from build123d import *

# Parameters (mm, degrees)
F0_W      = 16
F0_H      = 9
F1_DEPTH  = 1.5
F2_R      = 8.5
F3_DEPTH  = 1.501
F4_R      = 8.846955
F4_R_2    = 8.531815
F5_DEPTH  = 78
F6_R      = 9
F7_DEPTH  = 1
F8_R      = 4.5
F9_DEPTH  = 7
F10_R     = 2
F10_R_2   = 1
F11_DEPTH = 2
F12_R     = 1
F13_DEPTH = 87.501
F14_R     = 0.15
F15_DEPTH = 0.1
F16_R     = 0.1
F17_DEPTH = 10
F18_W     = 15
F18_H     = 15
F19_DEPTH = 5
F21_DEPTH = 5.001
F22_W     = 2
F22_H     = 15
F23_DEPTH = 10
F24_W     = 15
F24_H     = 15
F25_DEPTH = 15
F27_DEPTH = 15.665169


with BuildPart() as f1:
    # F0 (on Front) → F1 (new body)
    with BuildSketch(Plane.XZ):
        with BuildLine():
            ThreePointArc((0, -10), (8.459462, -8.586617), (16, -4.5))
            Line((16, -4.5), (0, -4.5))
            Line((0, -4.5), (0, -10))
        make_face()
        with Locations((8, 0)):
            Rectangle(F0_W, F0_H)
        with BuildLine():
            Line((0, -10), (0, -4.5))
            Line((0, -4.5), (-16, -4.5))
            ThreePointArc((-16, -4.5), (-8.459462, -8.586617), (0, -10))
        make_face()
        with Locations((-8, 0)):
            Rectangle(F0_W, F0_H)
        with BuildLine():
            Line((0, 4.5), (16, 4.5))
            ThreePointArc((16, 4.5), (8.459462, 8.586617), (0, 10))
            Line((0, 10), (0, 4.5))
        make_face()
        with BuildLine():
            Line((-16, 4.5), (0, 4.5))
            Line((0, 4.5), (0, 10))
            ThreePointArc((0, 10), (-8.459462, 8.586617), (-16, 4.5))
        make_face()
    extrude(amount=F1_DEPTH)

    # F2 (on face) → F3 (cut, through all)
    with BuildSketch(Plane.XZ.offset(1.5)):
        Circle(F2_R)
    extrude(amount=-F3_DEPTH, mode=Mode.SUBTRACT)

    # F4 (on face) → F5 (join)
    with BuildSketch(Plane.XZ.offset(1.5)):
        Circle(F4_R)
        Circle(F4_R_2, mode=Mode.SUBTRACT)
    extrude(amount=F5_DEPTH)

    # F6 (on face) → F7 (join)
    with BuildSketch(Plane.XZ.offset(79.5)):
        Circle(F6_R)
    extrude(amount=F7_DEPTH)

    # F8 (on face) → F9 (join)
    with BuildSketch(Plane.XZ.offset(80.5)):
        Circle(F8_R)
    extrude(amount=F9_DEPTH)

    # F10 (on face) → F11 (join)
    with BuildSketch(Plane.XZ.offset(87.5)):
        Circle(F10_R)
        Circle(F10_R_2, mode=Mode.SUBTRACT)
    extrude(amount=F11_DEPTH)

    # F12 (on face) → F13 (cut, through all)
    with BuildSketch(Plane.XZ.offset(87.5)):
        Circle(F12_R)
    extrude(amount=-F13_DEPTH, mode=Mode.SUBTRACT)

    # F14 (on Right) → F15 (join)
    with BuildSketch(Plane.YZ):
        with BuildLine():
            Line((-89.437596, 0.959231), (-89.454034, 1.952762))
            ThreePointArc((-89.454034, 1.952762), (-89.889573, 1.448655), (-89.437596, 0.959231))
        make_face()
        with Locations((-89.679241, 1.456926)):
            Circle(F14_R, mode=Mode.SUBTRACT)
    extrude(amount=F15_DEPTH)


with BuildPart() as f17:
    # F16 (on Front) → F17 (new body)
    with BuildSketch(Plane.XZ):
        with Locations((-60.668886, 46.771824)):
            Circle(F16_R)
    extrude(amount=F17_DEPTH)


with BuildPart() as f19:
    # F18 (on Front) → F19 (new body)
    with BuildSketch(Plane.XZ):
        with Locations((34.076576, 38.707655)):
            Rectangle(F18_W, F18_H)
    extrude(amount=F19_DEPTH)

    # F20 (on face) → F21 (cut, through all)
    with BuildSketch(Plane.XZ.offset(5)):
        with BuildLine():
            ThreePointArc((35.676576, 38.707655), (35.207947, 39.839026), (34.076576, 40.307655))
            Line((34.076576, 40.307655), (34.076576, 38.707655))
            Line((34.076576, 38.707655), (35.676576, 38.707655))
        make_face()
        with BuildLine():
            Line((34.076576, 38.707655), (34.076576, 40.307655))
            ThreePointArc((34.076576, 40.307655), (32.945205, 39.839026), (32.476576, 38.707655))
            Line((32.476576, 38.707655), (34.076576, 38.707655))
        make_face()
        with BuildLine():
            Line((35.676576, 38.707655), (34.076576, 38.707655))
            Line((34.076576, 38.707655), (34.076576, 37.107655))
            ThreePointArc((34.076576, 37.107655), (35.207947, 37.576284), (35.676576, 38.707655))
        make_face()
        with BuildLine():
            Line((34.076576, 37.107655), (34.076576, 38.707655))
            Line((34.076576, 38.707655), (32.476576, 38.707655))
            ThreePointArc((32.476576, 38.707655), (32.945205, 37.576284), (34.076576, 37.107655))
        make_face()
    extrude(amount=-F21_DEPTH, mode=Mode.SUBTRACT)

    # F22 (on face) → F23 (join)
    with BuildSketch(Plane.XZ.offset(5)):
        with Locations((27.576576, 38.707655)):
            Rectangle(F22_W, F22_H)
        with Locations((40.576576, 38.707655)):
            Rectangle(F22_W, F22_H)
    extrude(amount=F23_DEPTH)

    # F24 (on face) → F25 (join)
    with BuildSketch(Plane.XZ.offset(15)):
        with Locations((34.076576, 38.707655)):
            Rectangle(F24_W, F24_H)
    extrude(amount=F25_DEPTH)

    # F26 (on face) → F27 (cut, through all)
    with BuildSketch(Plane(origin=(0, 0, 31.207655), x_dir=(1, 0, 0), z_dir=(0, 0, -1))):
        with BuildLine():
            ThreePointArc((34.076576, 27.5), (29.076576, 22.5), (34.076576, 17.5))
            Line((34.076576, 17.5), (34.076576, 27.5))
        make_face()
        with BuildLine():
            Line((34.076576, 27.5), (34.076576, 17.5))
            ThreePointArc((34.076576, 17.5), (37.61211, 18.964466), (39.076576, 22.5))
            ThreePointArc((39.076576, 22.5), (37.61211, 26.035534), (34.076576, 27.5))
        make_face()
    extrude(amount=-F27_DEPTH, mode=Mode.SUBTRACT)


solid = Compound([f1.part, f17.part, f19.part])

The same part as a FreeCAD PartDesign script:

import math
import FreeCAD as App
import Part
import Sketcher

V = App.Vector


def add_polygon(sketch, points):
    """Adds a closed chain of lines whose ends are joined by coincident constraints."""
    first, n = sketch.GeometryCount, len(points)
    for a, b in zip(points, points[1:] + points[:1]):
        sketch.addGeometry(Part.LineSegment(App.Vector(*a, 0), App.Vector(*b, 0)), False)
    for i in range(n):
        sketch.addConstraint(Sketcher.Constraint("Coincident", first + i, 2, first + (i + 1) % n, 1))

doc = App.newDocument("Part")
params = doc.addObject("Spreadsheet::Sheet", "Params")
for row, (alias, value) in enumerate([
    ("sketch1_height", "9 mm"),
    ("pad1_length", "1.5 mm"),
    ("sketch2_diameter", "17 mm"),
    ("pad2_length", "78 mm"),
    ("sketch4_diameter", "18 mm"),
    ("pad3_length", "1 mm"),
    ("sketch5_diameter", "9 mm"),
    ("pad4_length", "7 mm"),
    ("sketch6_diameter", "4 mm"),
    ("sketch6_diameter2", "2 mm"),
    ("pad5_length", "2 mm"),
    ("sketch7_diameter", "2 mm"),
    ("sketch8_diameter", "0.3 mm"),
    ("sketch8_radius", "0.5 mm"),
    ("pad6_length", "0.1 mm"),
    ("sketch9_diameter", "0.2 mm"),
    ("pad7_length", "10 mm"),
    ("sketch10_width", "15 mm"),
    ("pad8_length", "5 mm"),
    ("sketch11_radius", "1.599999 mm"),
    ("sketch12_width", "2 mm"),
    ("sketch12_height", "15 mm"),
    ("pad9_length", "10 mm"),
    ("sketch13_width", "15 mm"),
    ("pad10_length", "15 mm"),
    ("sketch14_radius", "5 mm"),
], start=1):
    params.set(f"A{row}", alias)
    params.set(f"B{row}", "=" + value)
    params.setAlias(f"B{row}", alias)

body = doc.addObject("PartDesign::Body", "Body")

sketch1 = body.newObject("Sketcher::SketchObject", "Sketch")
sketch1.AttachmentSupport = (doc.getObject("XZ_Plane"), [""])
sketch1.MapMode = "FlatFace"
sketch1.addGeometry(Part.ArcOfCircle(Part.Circle(V(-0.000001, 16.022731, 0), V(0, 0, 1), 26.022731), math.radians(-89.999997), math.radians(-52.059187)), False)
sketch1.addGeometry(Part.LineSegment(V(16, -4.5, 0), V(16, 4.5, 0)), False)
sketch1.addGeometry(Part.ArcOfCircle(Part.Circle(V(-0.000001, -16.022731, 0), V(0, 0, 1), 26.022731), math.radians(52.059187), math.radians(89.999997)), False)
sketch1.addGeometry(Part.ArcOfCircle(Part.Circle(V(0.000001, -16.022731, 0), V(0, 0, 1), 26.022731), math.radians(90.000003), math.radians(127.940813)), False)
sketch1.addGeometry(Part.LineSegment(V(-16, 4.5, 0), V(-16, -4.5, 0)), False)
sketch1.addGeometry(Part.ArcOfCircle(Part.Circle(V(0.000001, 16.022731, 0), V(0, 0, 1), 26.022731), math.radians(-127.940813), math.radians(-90.000003)), False)
sketch1.addConstraint(Sketcher.Constraint("Coincident", 0, 2, 1, 1))
sketch1.addConstraint(Sketcher.Constraint("Coincident", 1, 2, 2, 1))
sketch1.addConstraint(Sketcher.Constraint("Tangent", 2, 2, 3, 1))
sketch1.addConstraint(Sketcher.Constraint("Coincident", 3, 2, 4, 1))
sketch1.addConstraint(Sketcher.Constraint("Coincident", 4, 2, 5, 1))
sketch1.addConstraint(Sketcher.Constraint("Tangent", 5, 2, 0, 1))
sketch1.addConstraint(Sketcher.Constraint("Vertical", 1))
sketch1.addConstraint(Sketcher.Constraint("Vertical", 4))
sketch1.addConstraint(Sketcher.Constraint("Equal", 0, 2))
sketch1.addConstraint(Sketcher.Constraint("Equal", 2, 3))
sketch1.addConstraint(Sketcher.Constraint("Equal", 3, 5))
sketch1.addConstraint(Sketcher.Constraint("Symmetric", 0, 3, 2, 3, -1, 1))
sketch1.addConstraint(Sketcher.Constraint("Symmetric", 1, 2, 3, 2, -2))
sketch1.addConstraint(Sketcher.Constraint("PointOnObject", 2, 2, -2))
sketch1.addConstraint(Sketcher.Constraint("PointOnObject", 5, 2, -2))
sketch1.addConstraint(Sketcher.Constraint("DistanceY", 1, 1, 1, 2, 9.0))
sketch1.addConstraint(Sketcher.Constraint("DistanceX", -1, 1, 0, 2, 16.0))
sketch1.addConstraint(Sketcher.Constraint("DistanceY", -1, 1, 2, 2, 10.0))
sketch1.setExpression("Constraints[15]", "Params.sketch1_height")
pad1 = body.newObject("PartDesign::Pad", "Pad")
pad1.Profile = sketch1
pad1.setExpression("Length", "Params.pad1_length")

sketch2 = body.newObject("Sketcher::SketchObject", "Sketch001")
sketch2.AttachmentSupport = (doc.getObject("XZ_Plane"), [""])
sketch2.MapMode = "FlatFace"
sketch2.AttachmentOffset = App.Placement(V(0, 0, 1.5), App.Rotation())
sketch2.addGeometry(Part.Circle(V(0, 0, 0), V(0, 0, 1), 8.5), False)
sketch2.addConstraint(Sketcher.Constraint("Coincident", 0, 3, -1, 1))
sketch2.addConstraint(Sketcher.Constraint("Diameter", 0, 17.0))
sketch2.setExpression("Constraints[1]", "Params.sketch2_diameter")
pocket1 = body.newObject("PartDesign::Pocket", "Pocket")
pocket1.Profile = sketch2
pocket1.Type = "ThroughAll"

sketch3 = body.newObject("Sketcher::SketchObject", "Sketch002")
sketch3.AttachmentSupport = (doc.getObject("XZ_Plane"), [""])
sketch3.MapMode = "FlatFace"
sketch3.AttachmentOffset = App.Placement(V(0, 0, 1.5), App.Rotation())
sketch3.addGeometry(Part.Circle(V(0, 0, 0), V(0, 0, 1), 8.846955), False)
sketch3.addGeometry(Part.Circle(V(0, 0, 0), V(0, 0, 1), 8.531815), False)
sketch3.addConstraint(Sketcher.Constraint("Coincident", 0, 3, -1, 1))
sketch3.addConstraint(Sketcher.Constraint("Coincident", 1, 3, -1, 1))
sketch3.addConstraint(Sketcher.Constraint("Diameter", 0, 17.69391))
sketch3.addConstraint(Sketcher.Constraint("Diameter", 1, 17.06363))
pad2 = body.newObject("PartDesign::Pad", "Pad001")
pad2.Profile = sketch3
pad2.setExpression("Length", "Params.pad2_length")

sketch4 = body.newObject("Sketcher::SketchObject", "Sketch003")
sketch4.AttachmentSupport = (doc.getObject("XZ_Plane"), [""])
sketch4.MapMode = "FlatFace"
sketch4.AttachmentOffset = App.Placement(V(0, 0, 79.5), App.Rotation())
sketch4.addGeometry(Part.Circle(V(0, 0, 0), V(0, 0, 1), 9), False)
sketch4.addConstraint(Sketcher.Constraint("Coincident", 0, 3, -1, 1))
sketch4.addConstraint(Sketcher.Constraint("Diameter", 0, 18.0))
sketch4.setExpression("Constraints[1]", "Params.sketch4_diameter")
pad3 = body.newObject("PartDesign::Pad", "Pad002")
pad3.Profile = sketch4
pad3.setExpression("Length", "Params.pad3_length")

sketch5 = body.newObject("Sketcher::SketchObject", "Sketch004")
sketch5.AttachmentSupport = (doc.getObject("XZ_Plane"), [""])
sketch5.MapMode = "FlatFace"
sketch5.AttachmentOffset = App.Placement(V(0, 0, 80.5), App.Rotation())
sketch5.addGeometry(Part.Circle(V(0, 0, 0), V(0, 0, 1), 4.5), False)
sketch5.addConstraint(Sketcher.Constraint("Coincident", 0, 3, -1, 1))
sketch5.addConstraint(Sketcher.Constraint("Diameter", 0, 9.0))
sketch5.setExpression("Constraints[1]", "Params.sketch5_diameter")
pad4 = body.newObject("PartDesign::Pad", "Pad003")
pad4.Profile = sketch5
pad4.setExpression("Length", "Params.pad4_length")

sketch6 = body.newObject("Sketcher::SketchObject", "Sketch005")
sketch6.AttachmentSupport = (doc.getObject("XZ_Plane"), [""])
sketch6.MapMode = "FlatFace"
sketch6.AttachmentOffset = App.Placement(V(0, 0, 87.5), App.Rotation())
sketch6.addGeometry(Part.Circle(V(0, 0, 0), V(0, 0, 1), 2), False)
sketch6.addGeometry(Part.Circle(V(0, 0, 0), V(0, 0, 1), 1), False)
sketch6.addConstraint(Sketcher.Constraint("Coincident", 0, 3, -1, 1))
sketch6.addConstraint(Sketcher.Constraint("Coincident", 1, 3, -1, 1))
sketch6.addConstraint(Sketcher.Constraint("Diameter", 0, 4.0))
sketch6.addConstraint(Sketcher.Constraint("Diameter", 1, 2.0))
sketch6.setExpression("Constraints[2]", "Params.sketch6_diameter")
sketch6.setExpression("Constraints[3]", "Params.sketch6_diameter2")
pad5 = body.newObject("PartDesign::Pad", "Pad004")
pad5.Profile = sketch6
pad5.setExpression("Length", "Params.pad5_length")

sketch7 = body.newObject("Sketcher::SketchObject", "Sketch006")
sketch7.AttachmentSupport = (doc.getObject("XZ_Plane"), [""])
sketch7.MapMode = "FlatFace"
sketch7.AttachmentOffset = App.Placement(V(0, 0, 87.5), App.Rotation())
sketch7.addGeometry(Part.Circle(V(0, 0, 0), V(0, 0, 1), 1), False)
sketch7.addConstraint(Sketcher.Constraint("Coincident", 0, 3, -1, 1))
sketch7.addConstraint(Sketcher.Constraint("Diameter", 0, 2.0))
sketch7.setExpression("Constraints[1]", "Params.sketch7_diameter")
pocket2 = body.newObject("PartDesign::Pocket", "Pocket001")
pocket2.Profile = sketch7
pocket2.Type = "ThroughAll"

sketch8 = body.newObject("Sketcher::SketchObject", "Sketch007")
sketch8.AttachmentSupport = (doc.getObject("YZ_Plane"), [""])
sketch8.MapMode = "FlatFace"
sketch8.addGeometry(Part.LineSegment(V(-89.437596, 0.959231, 0), V(-89.454034, 1.952762, 0)), False)
sketch8.addGeometry(Part.ArcOfCircle(Part.Circle(V(-89.389642, 1.456926, 0), V(0, 0, 1), 0.5), math.radians(97.399381), math.radians(264.496367)), False)
sketch8.addGeometry(Part.Circle(V(-89.679241, 1.456926, 0), V(0, 0, 1), 0.15), False)
sketch8.addConstraint(Sketcher.Constraint("Coincident", 0, 1, 1, 2))
sketch8.addConstraint(Sketcher.Constraint("Coincident", 1, 1, 0, 2))
sketch8.addConstraint(Sketcher.Constraint("Horizontal", 1, 3, 2, 3))
sketch8.addConstraint(Sketcher.Constraint("Diameter", 2, 0.3))
sketch8.addConstraint(Sketcher.Constraint("Radius", 1, 0.5))
sketch8.addConstraint(Sketcher.Constraint("DistanceX", 2, 3, 1, 3, 0.289599))
sketch8.addConstraint(Sketcher.Constraint("DistanceX", 1, 3, -1, 1, 89.389642))
sketch8.addConstraint(Sketcher.Constraint("DistanceY", -1, 1, 0, 1, 0.959231))
sketch8.addConstraint(Sketcher.Constraint("DistanceX", 1, 1, 0, 1, 0.016438))
sketch8.addConstraint(Sketcher.Constraint("DistanceY", 0, 1, 1, 1, 0.993531))
sketch8.setExpression("Constraints[3]", "Params.sketch8_diameter")
sketch8.setExpression("Constraints[4]", "Params.sketch8_radius")
pad6 = body.newObject("PartDesign::Pad", "Pad005")
pad6.Profile = sketch8
pad6.setExpression("Length", "Params.pad6_length")
body2 = doc.addObject("PartDesign::Body", "Body001")

sketch9 = body2.newObject("Sketcher::SketchObject", "Sketch008")
sketch9.AttachmentSupport = (doc.getObject("XZ_Plane001"), [""])
sketch9.MapMode = "FlatFace"
sketch9.addGeometry(Part.Circle(V(-60.668886, 46.771824, 0), V(0, 0, 1), 0.1), False)
sketch9.addConstraint(Sketcher.Constraint("Diameter", 0, 0.2))
sketch9.addConstraint(Sketcher.Constraint("DistanceX", 0, 3, -1, 1, 60.668886))
sketch9.addConstraint(Sketcher.Constraint("DistanceY", -1, 1, 0, 3, 46.771824))
sketch9.setExpression("Constraints[0]", "Params.sketch9_diameter")
pad7 = body2.newObject("PartDesign::Pad", "Pad006")
pad7.Profile = sketch9
pad7.setExpression("Length", "Params.pad7_length")
body3 = doc.addObject("PartDesign::Body", "Body002")

sketch10 = body3.newObject("Sketcher::SketchObject", "Sketch009")
sketch10.AttachmentSupport = (doc.getObject("XZ_Plane002"), [""])
sketch10.MapMode = "FlatFace"
add_polygon(sketch10, [(26.576576, 46.207655), (26.576576, 31.207655), (41.576576, 31.207655), (41.576576, 46.207655)])
sketch10.addConstraint(Sketcher.Constraint("Vertical", 0))
sketch10.addConstraint(Sketcher.Constraint("Horizontal", 1))
sketch10.addConstraint(Sketcher.Constraint("Vertical", 2))
sketch10.addConstraint(Sketcher.Constraint("Horizontal", 3))
sketch10.addConstraint(Sketcher.Constraint("Equal", 3, 0))
sketch10.addConstraint(Sketcher.Constraint("DistanceX", 1, 1, 1, 2, 15.0))
sketch10.addConstraint(Sketcher.Constraint("DistanceX", -1, 1, 0, 2, 26.576576))
sketch10.addConstraint(Sketcher.Constraint("DistanceY", -1, 1, 0, 2, 31.207655))
sketch10.setExpression("Constraints[9]", "Params.sketch10_width")
pad8 = body3.newObject("PartDesign::Pad", "Pad007")
pad8.Profile = sketch10
pad8.setExpression("Length", "Params.pad8_length")

sketch11 = body3.newObject("Sketcher::SketchObject", "Sketch010")
sketch11.AttachmentSupport = (doc.getObject("XZ_Plane002"), [""])
sketch11.MapMode = "FlatFace"
sketch11.AttachmentOffset = App.Placement(V(0, 0, 5), App.Rotation())
sketch11.addGeometry(Part.ArcOfCircle(Part.Circle(V(34.076577, 38.707656, 0), V(0, 0, 1), 1.599999), math.radians(-0.000018), math.radians(90.000018)), False)
sketch11.addGeometry(Part.ArcOfCircle(Part.Circle(V(34.076575, 38.707656, 0), V(0, 0, 1), 1.599999), math.radians(89.999982), math.radians(180.000018)), False)
sketch11.addGeometry(Part.ArcOfCircle(Part.Circle(V(34.076575, 38.707654, 0), V(0, 0, 1), 1.599999), math.radians(179.999982), math.radians(270.000018)), False)
sketch11.addGeometry(Part.ArcOfCircle(Part.Circle(V(34.076577, 38.707654, 0), V(0, 0, 1), 1.599999), math.radians(-90.000018), math.radians(0.000018)), False)
sketch11.addConstraint(Sketcher.Constraint("Tangent", 0, 2, 1, 1))
sketch11.addConstraint(Sketcher.Constraint("Tangent", 1, 2, 2, 1))
sketch11.addConstraint(Sketcher.Constraint("Tangent", 2, 2, 3, 1))
sketch11.addConstraint(Sketcher.Constraint("Tangent", 3, 2, 0, 1))
sketch11.addConstraint(Sketcher.Constraint("Equal", 0, 1))
sketch11.addConstraint(Sketcher.Constraint("Horizontal", 3, 3, 1, 2))
sketch11.addConstraint(Sketcher.Constraint("Horizontal", 1, 2, 3, 2))
sketch11.addConstraint(Sketcher.Constraint("Vertical", 3, 3, 0, 2))
sketch11.addConstraint(Sketcher.Constraint("Vertical", 0, 2, 2, 2))
sketch11.addConstraint(Sketcher.Constraint("Radius", 0, 1.599999))
sketch11.addConstraint(Sketcher.Constraint("DistanceX", -1, 1, 0, 3, 34.076577))
sketch11.addConstraint(Sketcher.Constraint("DistanceY", -1, 1, 0, 3, 38.707656))
sketch11.setExpression("Constraints[9]", "Params.sketch11_radius")
pocket3 = body3.newObject("PartDesign::Pocket", "Pocket002")
pocket3.Profile = sketch11
pocket3.Type = "ThroughAll"

sketch12 = body3.newObject("Sketcher::SketchObject", "Sketch011")
sketch12.AttachmentSupport = (doc.getObject("XZ_Plane002"), [""])
sketch12.MapMode = "FlatFace"
sketch12.AttachmentOffset = App.Placement(V(0, 0, 5), App.Rotation())
add_polygon(sketch12, [(26.576576, 46.207655), (26.576576, 31.207655), (28.576576, 31.207655), (28.576576, 46.207655)])
add_polygon(sketch12, [(39.576576, 46.207655), (39.576576, 31.207655), (41.576576, 31.207655), (41.576576, 46.207655)])
sketch12.addConstraint(Sketcher.Constraint("Vertical", 0))
sketch12.addConstraint(Sketcher.Constraint("Horizontal", 1))
sketch12.addConstraint(Sketcher.Constraint("Vertical", 2))
sketch12.addConstraint(Sketcher.Constraint("Horizontal", 3))
sketch12.addConstraint(Sketcher.Constraint("Vertical", 4))
sketch12.addConstraint(Sketcher.Constraint("Horizontal", 5))
sketch12.addConstraint(Sketcher.Constraint("Vertical", 6))
sketch12.addConstraint(Sketcher.Constraint("Horizontal", 7))
sketch12.addConstraint(Sketcher.Constraint("Horizontal", 1, 2, 4, 2))
sketch12.addConstraint(Sketcher.Constraint("Horizontal", 3, 2, 6, 2))
sketch12.addConstraint(Sketcher.Constraint("Equal", 3, 5))
sketch12.addConstraint(Sketcher.Constraint("DistanceX", 1, 1, 1, 2, 2.0))
sketch12.addConstraint(Sketcher.Constraint("DistanceY", 0, 2, 0, 1, 15.0))
sketch12.addConstraint(Sketcher.Constraint("DistanceX", 1, 2, 4, 2, 11.0))
sketch12.addConstraint(Sketcher.Constraint("DistanceX", -1, 1, 0, 2, 26.576576))
sketch12.addConstraint(Sketcher.Constraint("DistanceY", -1, 1, 0, 2, 31.207655))
sketch12.setExpression("Constraints[19]", "Params.sketch12_width")
sketch12.setExpression("Constraints[20]", "Params.sketch12_height")
pad9 = body3.newObject("PartDesign::Pad", "Pad008")
pad9.Profile = sketch12
pad9.setExpression("Length", "Params.pad9_length")

sketch13 = body3.newObject("Sketcher::SketchObject", "Sketch012")
sketch13.AttachmentSupport = (doc.getObject("XZ_Plane002"), [""])
sketch13.MapMode = "FlatFace"
sketch13.AttachmentOffset = App.Placement(V(0, 0, 15), App.Rotation())
add_polygon(sketch13, [(26.576576, 46.207655), (26.576576, 31.207655), (41.576576, 31.207655), (41.576576, 46.207655)])
sketch13.addConstraint(Sketcher.Constraint("Vertical", 0))
sketch13.addConstraint(Sketcher.Constraint("Horizontal", 1))
sketch13.addConstraint(Sketcher.Constraint("Vertical", 2))
sketch13.addConstraint(Sketcher.Constraint("Horizontal", 3))
sketch13.addConstraint(Sketcher.Constraint("Equal", 3, 0))
sketch13.addConstraint(Sketcher.Constraint("DistanceX", 1, 1, 1, 2, 15.0))
sketch13.addConstraint(Sketcher.Constraint("DistanceX", -1, 1, 0, 2, 26.576576))
sketch13.addConstraint(Sketcher.Constraint("DistanceY", -1, 1, 0, 2, 31.207655))
sketch13.setExpression("Constraints[9]", "Params.sketch13_width")
pad10 = body3.newObject("PartDesign::Pad", "Pad009")
pad10.Profile = sketch13
pad10.setExpression("Length", "Params.pad10_length")

sketch14 = body3.newObject("Sketcher::SketchObject", "Sketch013")
sketch14.AttachmentSupport = (doc.getObject("XY_Plane002"), [""])
sketch14.MapMode = "FlatFace"
sketch14.AttachmentOffset = App.Placement(V(0, 0, 31.207655), App.Rotation())
sketch14.addGeometry(Part.ArcOfCircle(Part.Circle(V(34.076576, -22.5, 0), V(0, 0, 1), 5), math.radians(90), math.radians(270)), False)
sketch14.addGeometry(Part.ArcOfCircle(Part.Circle(V(34.076576, -22.5, 0), V(0, 0, 1), 5), math.radians(-0.000004), math.radians(90.000004)), False)
sketch14.addGeometry(Part.ArcOfCircle(Part.Circle(V(34.076576, -22.5, 0), V(0, 0, 1), 5), math.radians(-90.000004), math.radians(0.000004)), False)
sketch14.addConstraint(Sketcher.Constraint("Tangent", 0, 1, 1, 2))
sketch14.addConstraint(Sketcher.Constraint("Tangent", 1, 1, 2, 2))
sketch14.addConstraint(Sketcher.Constraint("Tangent", 2, 1, 0, 2))
sketch14.addConstraint(Sketcher.Constraint("Horizontal", 2, 3, 1, 1))
sketch14.addConstraint(Sketcher.Constraint("Vertical", 2, 3, 0, 1))
sketch14.addConstraint(Sketcher.Constraint("Vertical", 0, 1, 2, 1))
sketch14.addConstraint(Sketcher.Constraint("Radius", 0, 5.0))
sketch14.addConstraint(Sketcher.Constraint("DistanceY", 0, 3, -1, 1, 22.5))
sketch14.addConstraint(Sketcher.Constraint("DistanceX", -1, 1, 0, 3, 34.076576))
sketch14.setExpression("Constraints[6]", "Params.sketch14_radius")
pocket4 = body3.newObject("PartDesign::Pocket", "Pocket003")
pocket4.Profile = sketch14
pocket4.Type = "ThroughAll"
pocket4.Reversed = True

doc.recompute()
